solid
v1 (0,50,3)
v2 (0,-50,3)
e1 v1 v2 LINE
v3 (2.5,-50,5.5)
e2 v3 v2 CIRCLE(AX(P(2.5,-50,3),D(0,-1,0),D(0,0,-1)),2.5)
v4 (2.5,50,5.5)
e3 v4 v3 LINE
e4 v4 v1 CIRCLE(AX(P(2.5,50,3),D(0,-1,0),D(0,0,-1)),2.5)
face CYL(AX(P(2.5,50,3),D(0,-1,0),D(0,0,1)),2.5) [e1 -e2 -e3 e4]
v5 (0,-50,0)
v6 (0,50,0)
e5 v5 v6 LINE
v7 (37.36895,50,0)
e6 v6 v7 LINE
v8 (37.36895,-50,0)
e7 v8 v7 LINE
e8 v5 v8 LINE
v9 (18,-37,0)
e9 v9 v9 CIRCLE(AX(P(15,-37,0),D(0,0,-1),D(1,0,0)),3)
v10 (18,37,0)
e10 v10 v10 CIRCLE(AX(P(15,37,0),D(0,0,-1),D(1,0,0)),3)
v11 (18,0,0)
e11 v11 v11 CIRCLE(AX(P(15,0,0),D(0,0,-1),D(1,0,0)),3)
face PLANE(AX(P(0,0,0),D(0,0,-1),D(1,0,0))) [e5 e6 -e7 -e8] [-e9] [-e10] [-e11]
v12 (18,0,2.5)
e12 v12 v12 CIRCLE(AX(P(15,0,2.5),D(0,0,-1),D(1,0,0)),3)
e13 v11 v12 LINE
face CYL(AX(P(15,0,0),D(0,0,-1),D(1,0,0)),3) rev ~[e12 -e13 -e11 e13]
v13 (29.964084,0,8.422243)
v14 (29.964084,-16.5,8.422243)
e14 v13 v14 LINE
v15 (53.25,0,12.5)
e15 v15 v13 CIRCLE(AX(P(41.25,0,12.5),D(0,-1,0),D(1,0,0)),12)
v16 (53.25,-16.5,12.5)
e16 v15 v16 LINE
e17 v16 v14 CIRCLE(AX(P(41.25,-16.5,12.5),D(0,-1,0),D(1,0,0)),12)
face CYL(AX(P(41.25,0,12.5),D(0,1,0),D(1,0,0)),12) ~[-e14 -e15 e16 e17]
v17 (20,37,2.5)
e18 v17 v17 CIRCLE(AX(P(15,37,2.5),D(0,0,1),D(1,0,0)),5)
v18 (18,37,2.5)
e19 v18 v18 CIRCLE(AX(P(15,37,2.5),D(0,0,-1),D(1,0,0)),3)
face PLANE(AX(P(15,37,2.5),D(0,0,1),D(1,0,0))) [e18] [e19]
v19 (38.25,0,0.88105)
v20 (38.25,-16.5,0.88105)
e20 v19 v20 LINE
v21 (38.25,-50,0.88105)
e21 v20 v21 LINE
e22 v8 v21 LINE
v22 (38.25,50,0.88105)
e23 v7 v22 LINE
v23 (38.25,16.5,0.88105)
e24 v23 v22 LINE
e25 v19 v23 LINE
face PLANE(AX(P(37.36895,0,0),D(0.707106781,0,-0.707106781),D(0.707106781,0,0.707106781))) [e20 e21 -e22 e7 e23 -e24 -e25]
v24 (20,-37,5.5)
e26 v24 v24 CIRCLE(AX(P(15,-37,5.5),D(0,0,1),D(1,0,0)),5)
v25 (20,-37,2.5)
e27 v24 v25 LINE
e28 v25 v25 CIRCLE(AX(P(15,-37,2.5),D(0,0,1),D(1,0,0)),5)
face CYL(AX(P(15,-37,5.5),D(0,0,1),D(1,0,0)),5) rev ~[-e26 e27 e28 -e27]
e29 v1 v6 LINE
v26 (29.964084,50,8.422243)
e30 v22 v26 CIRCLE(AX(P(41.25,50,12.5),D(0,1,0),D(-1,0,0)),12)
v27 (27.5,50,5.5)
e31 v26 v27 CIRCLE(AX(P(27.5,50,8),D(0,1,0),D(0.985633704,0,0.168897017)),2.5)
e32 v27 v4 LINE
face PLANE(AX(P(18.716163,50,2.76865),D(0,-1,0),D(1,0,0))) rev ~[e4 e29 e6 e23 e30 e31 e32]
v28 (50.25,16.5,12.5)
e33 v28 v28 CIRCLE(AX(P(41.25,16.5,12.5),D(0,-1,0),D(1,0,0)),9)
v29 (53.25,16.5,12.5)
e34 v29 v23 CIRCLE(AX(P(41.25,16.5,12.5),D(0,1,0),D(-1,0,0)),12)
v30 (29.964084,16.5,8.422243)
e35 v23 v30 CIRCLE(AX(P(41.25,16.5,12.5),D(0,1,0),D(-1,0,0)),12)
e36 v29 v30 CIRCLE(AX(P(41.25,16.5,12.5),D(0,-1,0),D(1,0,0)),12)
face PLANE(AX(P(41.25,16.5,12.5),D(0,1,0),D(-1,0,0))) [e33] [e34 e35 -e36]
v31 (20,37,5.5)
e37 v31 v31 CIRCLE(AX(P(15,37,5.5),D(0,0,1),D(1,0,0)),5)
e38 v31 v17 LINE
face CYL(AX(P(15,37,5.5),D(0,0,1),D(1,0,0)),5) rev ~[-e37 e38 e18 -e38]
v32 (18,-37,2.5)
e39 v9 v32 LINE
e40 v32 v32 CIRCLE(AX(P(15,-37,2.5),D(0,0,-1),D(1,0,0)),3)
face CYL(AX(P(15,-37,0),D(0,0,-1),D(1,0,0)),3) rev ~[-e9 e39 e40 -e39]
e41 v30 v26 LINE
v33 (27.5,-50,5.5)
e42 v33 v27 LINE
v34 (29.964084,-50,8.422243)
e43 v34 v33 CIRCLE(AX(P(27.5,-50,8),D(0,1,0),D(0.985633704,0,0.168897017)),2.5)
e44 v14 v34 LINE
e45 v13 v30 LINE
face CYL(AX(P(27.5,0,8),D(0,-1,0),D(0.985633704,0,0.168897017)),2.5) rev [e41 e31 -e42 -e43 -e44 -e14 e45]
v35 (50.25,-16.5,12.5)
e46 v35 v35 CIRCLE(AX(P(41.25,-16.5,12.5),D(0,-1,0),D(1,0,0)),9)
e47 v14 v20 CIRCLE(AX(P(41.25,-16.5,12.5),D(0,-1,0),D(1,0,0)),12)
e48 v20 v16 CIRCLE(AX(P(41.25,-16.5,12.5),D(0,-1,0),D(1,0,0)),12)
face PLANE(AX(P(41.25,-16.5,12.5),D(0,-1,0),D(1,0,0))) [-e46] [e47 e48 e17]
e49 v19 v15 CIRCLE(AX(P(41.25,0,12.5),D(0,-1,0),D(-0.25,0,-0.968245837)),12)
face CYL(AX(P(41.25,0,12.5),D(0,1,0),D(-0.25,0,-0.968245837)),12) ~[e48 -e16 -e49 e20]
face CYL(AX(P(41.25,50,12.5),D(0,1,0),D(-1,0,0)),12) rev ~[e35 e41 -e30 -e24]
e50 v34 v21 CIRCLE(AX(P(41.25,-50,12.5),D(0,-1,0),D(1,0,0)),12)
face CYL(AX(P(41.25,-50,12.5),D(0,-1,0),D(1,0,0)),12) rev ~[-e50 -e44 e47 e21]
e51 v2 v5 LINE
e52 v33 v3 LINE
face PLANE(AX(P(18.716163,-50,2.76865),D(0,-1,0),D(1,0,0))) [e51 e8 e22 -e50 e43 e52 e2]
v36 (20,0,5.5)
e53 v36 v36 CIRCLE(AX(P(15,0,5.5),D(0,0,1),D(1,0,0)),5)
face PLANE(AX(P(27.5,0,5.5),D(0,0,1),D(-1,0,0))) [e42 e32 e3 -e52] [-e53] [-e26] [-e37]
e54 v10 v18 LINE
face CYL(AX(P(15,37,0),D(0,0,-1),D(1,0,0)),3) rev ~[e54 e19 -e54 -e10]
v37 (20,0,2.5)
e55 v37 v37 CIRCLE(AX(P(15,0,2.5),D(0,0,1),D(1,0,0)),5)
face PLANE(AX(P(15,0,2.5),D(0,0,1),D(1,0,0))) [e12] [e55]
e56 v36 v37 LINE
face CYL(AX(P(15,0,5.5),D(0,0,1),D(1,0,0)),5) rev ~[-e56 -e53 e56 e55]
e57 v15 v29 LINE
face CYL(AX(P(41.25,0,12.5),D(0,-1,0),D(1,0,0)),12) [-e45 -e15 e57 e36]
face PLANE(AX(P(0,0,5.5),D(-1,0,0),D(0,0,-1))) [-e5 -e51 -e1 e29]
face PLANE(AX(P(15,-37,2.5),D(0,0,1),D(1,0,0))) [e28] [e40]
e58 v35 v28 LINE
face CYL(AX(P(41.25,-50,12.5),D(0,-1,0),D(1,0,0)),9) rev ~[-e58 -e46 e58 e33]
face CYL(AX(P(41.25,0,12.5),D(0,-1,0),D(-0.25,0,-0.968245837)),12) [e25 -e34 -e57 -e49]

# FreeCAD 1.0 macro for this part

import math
import FreeCAD as App
import Part
import Sketcher

V = App.Vector
Q = App.Units.Quantity


def edges_at(feature, points):
    """Names of the edges that pass closest to the given points."""
    edges = feature.Shape.Edges
    near = lambda p: min(range(len(edges)), key=lambda i: edges[i].distToShape(Part.Vertex(*p))[0])
    return sorted({f"Edge{near(p) + 1}" for p in points})

doc = App.newDocument("Part")
body = doc.addObject("PartDesign::Body", "Body")

# Sketch on XZ plane
sketch1 = doc.addObject("Sketcher::SketchObject", "Sketch")
body.addObject(sketch1)
sketch1.AttachmentSupport = (doc.XZ_Plane, [""])
sketch1.MapMode = "FlatFace"
sketch1.addGeometry([
    Part.LineSegment(V(27.5, 5.5, 0), V(0, 5.5, 0)),  # 0
    Part.LineSegment(V(0, 5.5, 0), V(0, 0, 0)),  # 1
    Part.LineSegment(V(0, 0, 0), V(37.4, 0, 0)),  # 2
    Part.LineSegment(V(37.4, 0, 0), V(38.2, 0.9, 0)),  # 3
    Part.ArcOfCircle(Part.Circle(V(41.2, 12.5, 0), V(0, 0, 1), 12), math.radians(-104), math.radians(0)),  # 4
    Part.ArcOfCircle(Part.Circle(V(41.2, 12.5, 0), V(0, 0, 1), 12), math.radians(0), math.radians(200)),  # 5
    Part.ArcOfCircle(Part.Circle(V(27.5, 8, 0), V(0, 0, 1), 2.5), math.radians(-90), math.radians(10)),  # 6
], False)
sketch1.addConstraint([
    Sketcher.Constraint("Coincident", 0, 2, 1, 1),
    Sketcher.Constraint("Coincident", 1, 2, 2, 1),
    Sketcher.Constraint("Coincident", 2, 2, 3, 1),
    Sketcher.Constraint("Coincident", 3, 2, 4, 1),
    Sketcher.Constraint("Tangent", 4, 2, 5, 1),
    Sketcher.Constraint("Coincident", 5, 2, 6, 2),
    Sketcher.Constraint("Tangent", 6, 1, 0, 1),
    Sketcher.Constraint("Horizontal", 0),
    Sketcher.Constraint("Vertical", 1),
    Sketcher.Constraint("Horizontal", 2),
    Sketcher.Constraint("Coincident", 1, 2, -1, 1),
    Sketcher.Constraint("Equal", 4, 5),
    Sketcher.Constraint("Horizontal", 5, 3, 4, 2),
    Sketcher.Constraint("Radius", 4, 12.0),
    Sketcher.Constraint("Radius", 6, 2.5),
    Sketcher.Constraint("Angle", 3, Q("45 deg")),
    Sketcher.Constraint("DistanceX", 0, 2, 0, 1, 27.5),
    Sketcher.Constraint("DistanceY", 1, 2, 1, 1, 5.5),
    Sketcher.Constraint("DistanceY", 0, 2, 4, 3, 7.0),
    Sketcher.Constraint("DistanceX", 3, 2, 4, 3, 3.0),
    Sketcher.Constraint("DistanceX", -1, 1, 4, 3, 41.25),
])
pad1 = doc.addObject("PartDesign::Pad", "Pad")
body.addObject(pad1)
pad1.Profile = sketch1
pad1.Length = 100
pad1.Midplane = True
doc.recompute()

fillet = doc.addObject("PartDesign::Fillet", "Fillet")
body.addObject(fillet)
fillet.Base = (pad1, edges_at(pad1, [(0, 0, 5.5)]))
fillet.Radius = 2.5

# Sketch on XZ plane
sketch2 = doc.addObject("Sketcher::SketchObject", "Sketch001")
body.addObject(sketch2)
sketch2.AttachmentSupport = (doc.XZ_Plane, [""])
sketch2.MapMode = "FlatFace"
sketch2.AttachmentOffset = App.Placement(V(0, 0, 50), App.Rotation())
sketch2.addGeometry(Part.Circle(V(41, 12, 0), V(0, 0, 1), 9), False)
sketch2.addConstraint([
    Sketcher.Constraint("Diameter", 0, 18.0),
    Sketcher.Constraint("DistanceY", -1, 1, 0, 3, 12.5),
    Sketcher.Constraint("DistanceX", -1, 1, 0, 3, 41.25),
])
pocket1 = doc.addObject("PartDesign::Pocket", "Pocket")
body.addObject(pocket1)
pocket1.Profile = sketch2
pocket1.Type = "ThroughAll"

# Sketch on XZ plane
sketch3 = doc.addObject("Sketcher::SketchObject", "Sketch002")
body.addObject(sketch3)
sketch3.AttachmentSupport = (doc.XZ_Plane, [""])
sketch3.MapMode = "FlatFace"
sketch3.AttachmentOffset = App.Placement(V(0, 0, 50), App.Rotation())
sketch3.addGeometry(Part.Circle(V(41, 12, 0), V(0, 0, 1), 12), False)
sketch3.addConstraint([
    Sketcher.Constraint("Diameter", 0, 24.0),
    Sketcher.Constraint("DistanceY", -1, 1, 0, 3, 12.5),
    Sketcher.Constraint("DistanceX", -1, 1, 0, 3, 41.25),
])
pocket2 = doc.addObject("PartDesign::Pocket", "Pocket001")
body.addObject(pocket2)
pocket2.Profile = sketch3
pocket2.Length = 33.5

# Sketch on XZ plane
sketch4 = doc.addObject("Sketcher::SketchObject", "Sketch003")
body.addObject(sketch4)
sketch4.AttachmentSupport = (doc.XZ_Plane, [""])
sketch4.MapMode = "FlatFace"
sketch4.AttachmentOffset = App.Placement(V(0, 0, -50), App.Rotation())
sketch4.addGeometry(Part.Circle(V(41, 12, 0), V(0, 0, 1), 12), False)
sketch4.addConstraint([
    Sketcher.Constraint("Diameter", 0, 24.0),
    Sketcher.Constraint("DistanceY", -1, 1, 0, 3, 12.5),
    Sketcher.Constraint("DistanceX", -1, 1, 0, 3, 41.25),
])
pocket3 = doc.addObject("PartDesign::Pocket", "Pocket002")
body.addObject(pocket3)
pocket3.Profile = sketch4
pocket3.Length = 33.5
pocket3.Reversed = True

# Sketch on XY plane
sketch5 = doc.addObject("Sketcher::SketchObject", "Sketch004")
body.addObject(sketch5)
sketch5.AttachmentSupport = (doc.XY_Plane, [""])
sketch5.MapMode = "FlatFace"
sketch5.AttachmentOffset = App.Placement(V(0, 0, 5.5), App.Rotation())
sketch5.addGeometry([
    Part.Circle(V(15, 0, 0), V(0, 0, 1), 5),
    Part.Circle(V(15, 37, 0), V(0, 0, 1), 5),
    Part.Circle(V(15, -37, 0), V(0, 0, 1), 5),
], False)
sketch5.addConstraint([
    Sketcher.Constraint("Equal", 0, 1),
    Sketcher.Constraint("Equal", 1, 2),
    Sketcher.Constraint("Symmetric", 1, 3, 2, 3, -1),
    Sketcher.Constraint("PointOnObject", 0, 3, -1),
    Sketcher.Constraint("Vertical", 0, 3, 1, 3),
    Sketcher.Constraint("Diameter", 0, 10.0),
    Sketcher.Constraint("DistanceX", -1, 1, 0, 3, 15.0),
    Sketcher.Constraint("DistanceY", -1, 1, 1, 3, 37.0),
])
pocket4 = doc.addObject("PartDesign::Pocket", "Pocket003")
body.addObject(pocket4)
pocket4.Profile = sketch5
pocket4.Length = 3

# Sketch on XY plane
sketch6 = doc.addObject("Sketcher::SketchObject", "Sketch005")
body.addObject(sketch6)
sketch6.AttachmentSupport = (doc.XY_Plane, [""])
sketch6.MapMode = "FlatFace"
sketch6.addGeometry([
    Part.Circle(V(15, 37, 0), V(0, 0, 1), 3),
    Part.Circle(V(15, 0, 0), V(0, 0, 1), 3),
    Part.Circle(V(15, -37, 0), V(0, 0, 1), 3),
], False)
sketch6.addConstraint([
    Sketcher.Constraint("Equal", 0, 1),
    Sketcher.Constraint("Equal", 1, 2),
    Sketcher.Constraint("Symmetric", 0, 3, 2, 3, -1),
    Sketcher.Constraint("PointOnObject", 1, 3, -1),
    Sketcher.Constraint("Vertical", 0, 3, 1, 3),
    Sketcher.Constraint("Diameter", 0, 6.0),
    Sketcher.Constraint("DistanceX", -1, 1, 0, 3, 15.0),
    Sketcher.Constraint("DistanceY", -1, 1, 0, 3, 37.0),
])
pocket5 = doc.addObject("PartDesign::Pocket", "Pocket004")
body.addObject(pocket5)
pocket5.Profile = sketch6
pocket5.Type = "ThroughAll"
pocket5.Reversed = True

doc.recompute()
